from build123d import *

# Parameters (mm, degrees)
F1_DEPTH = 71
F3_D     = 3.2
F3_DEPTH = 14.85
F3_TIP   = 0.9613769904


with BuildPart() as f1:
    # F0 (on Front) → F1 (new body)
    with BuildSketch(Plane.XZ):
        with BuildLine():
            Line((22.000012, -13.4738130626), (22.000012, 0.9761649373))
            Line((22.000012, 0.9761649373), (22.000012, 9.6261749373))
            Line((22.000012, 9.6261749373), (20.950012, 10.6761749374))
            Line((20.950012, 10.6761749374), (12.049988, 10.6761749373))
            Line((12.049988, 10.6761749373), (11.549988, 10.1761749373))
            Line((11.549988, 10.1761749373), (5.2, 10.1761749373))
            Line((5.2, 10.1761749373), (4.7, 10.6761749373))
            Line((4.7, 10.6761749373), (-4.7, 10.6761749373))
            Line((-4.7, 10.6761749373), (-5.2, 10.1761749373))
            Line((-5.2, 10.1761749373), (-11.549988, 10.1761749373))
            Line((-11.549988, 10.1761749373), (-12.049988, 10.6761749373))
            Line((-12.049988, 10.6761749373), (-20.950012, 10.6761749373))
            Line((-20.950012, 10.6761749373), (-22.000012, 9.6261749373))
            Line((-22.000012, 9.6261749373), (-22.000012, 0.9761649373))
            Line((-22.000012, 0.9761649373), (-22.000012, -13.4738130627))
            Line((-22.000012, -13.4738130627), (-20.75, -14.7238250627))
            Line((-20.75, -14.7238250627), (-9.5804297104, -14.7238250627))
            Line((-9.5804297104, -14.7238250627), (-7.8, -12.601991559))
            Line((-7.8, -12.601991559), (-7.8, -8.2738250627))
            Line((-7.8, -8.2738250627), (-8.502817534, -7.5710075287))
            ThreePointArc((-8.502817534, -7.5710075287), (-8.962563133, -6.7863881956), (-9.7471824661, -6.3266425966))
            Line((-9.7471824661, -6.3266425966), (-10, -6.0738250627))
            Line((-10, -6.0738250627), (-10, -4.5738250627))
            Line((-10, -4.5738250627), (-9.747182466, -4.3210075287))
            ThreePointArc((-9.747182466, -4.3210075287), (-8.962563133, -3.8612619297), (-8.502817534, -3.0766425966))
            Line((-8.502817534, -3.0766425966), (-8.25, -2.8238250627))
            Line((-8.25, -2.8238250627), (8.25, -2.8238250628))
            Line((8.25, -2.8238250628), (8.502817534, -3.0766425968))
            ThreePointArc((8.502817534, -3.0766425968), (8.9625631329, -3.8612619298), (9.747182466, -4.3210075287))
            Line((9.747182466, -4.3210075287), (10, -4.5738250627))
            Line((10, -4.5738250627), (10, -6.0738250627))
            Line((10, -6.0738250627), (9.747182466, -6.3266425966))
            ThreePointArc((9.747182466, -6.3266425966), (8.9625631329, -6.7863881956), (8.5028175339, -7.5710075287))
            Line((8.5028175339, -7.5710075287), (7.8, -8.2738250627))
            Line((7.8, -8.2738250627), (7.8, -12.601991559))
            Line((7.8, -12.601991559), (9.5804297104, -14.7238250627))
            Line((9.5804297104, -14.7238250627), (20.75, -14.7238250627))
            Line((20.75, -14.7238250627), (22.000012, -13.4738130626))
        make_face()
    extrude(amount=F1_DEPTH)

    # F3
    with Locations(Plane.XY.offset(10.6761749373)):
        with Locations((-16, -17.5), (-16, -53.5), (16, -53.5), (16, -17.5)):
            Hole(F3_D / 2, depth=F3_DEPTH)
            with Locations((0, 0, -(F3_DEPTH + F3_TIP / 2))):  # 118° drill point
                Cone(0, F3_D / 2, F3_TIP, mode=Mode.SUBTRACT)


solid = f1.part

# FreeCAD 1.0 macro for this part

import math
import FreeCAD as App
import Part
import Sketcher
from FreeCAD import Vector
Q = App.Units.Quantity

doc = App.newDocument("Part")
body = doc.addObject("PartDesign::Body", "Body")

# Sketch on XZ plane
sketch1 = body.newObject("Sketcher::SketchObject", "Sketch")
sketch1.AttachmentSupport = (doc.getObject("XZ_Plane"), [""])
sketch1.MapMode = "FlatFace"
sketch1.addGeometry([
    Part.LineSegment(Vector(22, -13.47, 0), Vector(22, 9.63, 0)),  # 0
    Part.LineSegment(Vector(22, 9.63, 0), Vector(20.95, 10.68, 0)),  # 1
    Part.LineSegment(Vector(20.95, 10.68, 0), Vector(12.05, 10.68, 0)),  # 2
    Part.LineSegment(Vector(12.05, 10.68, 0), Vector(11.55, 10.18, 0)),  # 3
    Part.LineSegment(Vector(11.55, 10.18, 0), Vector(5.2, 10.18, 0)),  # 4
    Part.LineSegment(Vector(5.2, 10.18, 0), Vector(4.7, 10.68, 0)),  # 5
    Part.LineSegment(Vector(4.7, 10.68, 0), Vector(-4.7, 10.68, 0)),  # 6
    Part.LineSegment(Vector(-4.7, 10.68, 0), Vector(-5.2, 10.18, 0)),  # 7
    Part.LineSegment(Vector(-5.2, 10.18, 0), Vector(-11.55, 10.18, 0)),  # 8
    Part.LineSegment(Vector(-11.55, 10.18, 0), Vector(-12.05, 10.68, 0)),  # 9
    Part.LineSegment(Vector(-12.05, 10.68, 0), Vector(-20.95, 10.68, 0)),  # 10
    Part.LineSegment(Vector(-20.95, 10.68, 0), Vector(-22, 9.63, 0)),  # 11
    Part.LineSegment(Vector(-22, 9.63, 0), Vector(-22, -13.47, 0)),  # 12
    Part.LineSegment(Vector(-22, -13.47, 0), Vector(-20.75, -14.72, 0)),  # 13
    Part.LineSegment(Vector(-20.75, -14.72, 0), Vector(-9.58, -14.72, 0)),  # 14
    Part.LineSegment(Vector(-9.58, -14.72, 0), Vector(-7.8, -12.6, 0)),  # 15
    Part.LineSegment(Vector(-7.8, -12.6, 0), Vector(-7.8, -8.27, 0)),  # 16
    Part.LineSegment(Vector(-7.8, -8.27, 0), Vector(-8.5, -7.57, 0)),  # 17
    Part.ArcOfCircle(Part.Circle(Vector(-10.24, -8.06, 0), Vector(0, 0, 1), 1.8), math.radians(16), math.radians(74)),  # 18
    Part.LineSegment(Vector(-9.75, -6.33, 0), Vector(-10, -6.07, 0)),  # 19
    Part.LineSegment(Vector(-10, -6.07, 0), Vector(-10, -4.57, 0)),  # 20
    Part.LineSegment(Vector(-10, -4.57, 0), Vector(-9.75, -4.32, 0)),  # 21
    Part.ArcOfCircle(Part.Circle(Vector(-10.24, -2.59, 0), Vector(0, 0, 1), 1.8), math.radians(-74), math.radians(-16)),  # 22
    Part.LineSegment(Vector(-8.5, -3.08, 0), Vector(-8.25, -2.82, 0)),  # 23
    Part.LineSegment(Vector(-8.25, -2.82, 0), Vector(8.25, -2.82, 0)),  # 24
    Part.LineSegment(Vector(8.25, -2.82, 0), Vector(8.5, -3.08, 0)),  # 25
    Part.ArcOfCircle(Part.Circle(Vector(10.24, -2.59, 0), Vector(0, 0, 1), 1.8), math.radians(-164), math.radians(-106)),  # 26
    Part.LineSegment(Vector(9.75, -4.32, 0), Vector(10, -4.57, 0)),  # 27
    Part.LineSegment(Vector(10, -4.57, 0), Vector(10, -6.07, 0)),  # 28
    Part.LineSegment(Vector(10, -6.07, 0), Vector(9.75, -6.33, 0)),  # 29
    Part.ArcOfCircle(Part.Circle(Vector(10.24, -8.06, 0), Vector(0, 0, 1), 1.8), math.radians(106), math.radians(164)),  # 30
    Part.LineSegment(Vector(8.5, -7.57, 0), Vector(7.8, -8.27, 0)),  # 31
    Part.LineSegment(Vector(7.8, -8.27, 0), Vector(7.8, -12.6, 0)),  # 32
    Part.LineSegment(Vector(7.8, -12.6, 0), Vector(9.58, -14.72, 0)),  # 33
    Part.LineSegment(Vector(9.58, -14.72, 0), Vector(20.75, -14.72, 0)),  # 34
    Part.LineSegment(Vector(20.75, -14.72, 0), Vector(22, -13.47, 0)),  # 35
], False)
sketch1.addConstraint([
    Sketcher.Constraint("Coincident", 0, 2, 1, 1),
    Sketcher.Constraint("Coincident", 1, 2, 2, 1),
    Sketcher.Constraint("Coincident", 2, 2, 3, 1),
    Sketcher.Constraint("Coincident", 3, 2, 4, 1),
    Sketcher.Constraint("Coincident", 4, 2, 5, 1),
    Sketcher.Constraint("Coincident", 5, 2, 6, 1),
    Sketcher.Constraint("Coincident", 6, 2, 7, 1),
    Sketcher.Constraint("Coincident", 7, 2, 8, 1),
    Sketcher.Constraint("Coincident", 8, 2, 9, 1),
    Sketcher.Constraint("Coincident", 9, 2, 10, 1),
    Sketcher.Constraint("Coincident", 10, 2, 11, 1),
    Sketcher.Constraint("Coincident", 11, 2, 12, 1),
    Sketcher.Constraint("Coincident", 12, 2, 13, 1),
    Sketcher.Constraint("Coincident", 13, 2, 14, 1),
    Sketcher.Constraint("Coincident", 14, 2, 15, 1),
    Sketcher.Constraint("Coincident", 15, 2, 16, 1),
    Sketcher.Constraint("Coincident", 16, 2, 17, 1),
    Sketcher.Constraint("Coincident", 17, 2, 18, 1),
    Sketcher.Constraint("Coincident", 18, 2, 19, 1),
    Sketcher.Constraint("Coincident", 19, 2, 20, 1),
    Sketcher.Constraint("Coincident", 20, 2, 21, 1),
    Sketcher.Constraint("Coincident", 21, 2, 22, 1),
    Sketcher.Constraint("Coincident", 22, 2, 23, 1),
    Sketcher.Constraint("Coincident", 23, 2, 24, 1),
    Sketcher.Constraint("Coincident", 24, 2, 25, 1),
    Sketcher.Constraint("Coincident", 25, 2, 26, 1),
    Sketcher.Constraint("Coincident", 26, 2, 27, 1),
    Sketcher.Constraint("Coincident", 27, 2, 28, 1),
    Sketcher.Constraint("Coincident", 28, 2, 29, 1),
    Sketcher.Constraint("Coincident", 29, 2, 30, 1),
    Sketcher.Constraint("Coincident", 30, 2, 31, 1),
    Sketcher.Constraint("Coincident", 31, 2, 32, 1),
    Sketcher.Constraint("Coincident", 32, 2, 33, 1),
    Sketcher.Constraint("Coincident", 33, 2, 34, 1),
    Sketcher.Constraint("Coincident", 34, 2, 35, 1),
    Sketcher.Constraint("Coincident", 35, 2, 0, 1),
    Sketcher.Constraint("Vertical", 0),
    Sketcher.Constraint("Horizontal", 2),
    Sketcher.Constraint("Horizontal", 4),
    Sketcher.Constraint("Horizontal", 6),
    Sketcher.Constraint("Horizontal", 8),
    Sketcher.Constraint("Horizontal", 10),
    Sketcher.Constraint("Vertical", 12),
    Sketcher.Constraint("Horizontal", 14),
    Sketcher.Constraint("Vertical", 16),
    Sketcher.Constraint("Vertical", 20),
    Sketcher.Constraint("Horizontal", 24),
    Sketcher.Constraint("Vertical", 28),
    Sketcher.Constraint("Vertical", 32),
    Sketcher.Constraint("Horizontal", 34),
    Sketcher.Constraint("Equal", 18, 22),
    Sketcher.Constraint("Equal", 22, 26),
    Sketcher.Constraint("Equal", 26, 30),
    Sketcher.Constraint("Symmetric", 22, 3, 26, 3, -2),
    Sketcher.Constraint("Symmetric", 18, 3, 30, 3, -2),
    Sketcher.Constraint("Symmetric", 4, 2, 7, 2, -2),
    Sketcher.Constraint("Symmetric", 2, 2, 9, 2, -2),
    Sketcher.Constraint("Symmetric", 0, 2, 11, 2, -2),
    Sketcher.Constraint("Symmetric", 20, 2, 27, 2, -2),
    Sketcher.Constraint("Symmetric", 16, 2, 31, 2, -2),
    Sketcher.Constraint("Symmetric", 14, 2, 33, 2, -2),
    Sketcher.Constraint("Perpendicular", 1, 3),
    Sketcher.Constraint("Perpendicular", 3, 5),
    Sketcher.Constraint("Perpendicular", 5, 7),
    Sketcher.Constraint("Perpendicular", 7, 9),
    Sketcher.Constraint("Perpendicular", 9, 11),
    Sketcher.Constraint("Perpendicular", 11, 13),
    Sketcher.Constraint("Parallel", 13, 17),
    Sketcher.Constraint("Parallel", 17, 19),
    Sketcher.Constraint("Perpendicular", 19, 21),
    Sketcher.Constraint("Parallel", 21, 23),
    Sketcher.Constraint("Perpendicular", 23, 25),
    Sketcher.Constraint("Parallel", 25, 27),
    Sketcher.Constraint("Perpendicular", 27, 29),
    Sketcher.Constraint("Parallel", 29, 31),
    Sketcher.Constraint("Parallel", 31, 35),
    Sketcher.Constraint("Horizontal", 2, 2, 5, 2),
    Sketcher.Constraint("Horizontal", 22, 2, 25, 2),
    Sketcher.Constraint("Horizontal", 21, 2, 26, 2),
    Sketcher.Constraint("Horizontal", 19, 2, 28, 2),
    Sketcher.Constraint("Horizontal", 15, 2, 32, 2),
    Sketcher.Constraint("Horizontal", 12, 2, 35, 2),
    Sketcher.Constraint("Vertical", 18, 3, 22, 3),
    Sketcher.Constraint("Vertical", 18, 2, 21, 2),
    Sketcher.Constraint("Vertical", 17, 2, 22, 2),
    Sketcher.Constraint("Equal", 21, 23),
    Sketcher.Constraint("Radius", 18, 1.8),
    Sketcher.Constraint("Angle", 15, Q("50 deg")),
    Sketcher.Constraint("DistanceX", 6, 2, 6, 1, 9.4),
    Sketcher.Constraint("DistanceX", 24, 1, 24, 2, 16.5),
    Sketcher.Constraint("DistanceY", 20, 1, 20, 2, 1.5),
    Sketcher.Constraint("DistanceX", 19, 2, -1, 1, 10.0),
    Sketcher.Constraint("DistanceY", 24, 2, 4, 2, 13.0),
    Sketcher.Constraint("DistanceX", -1, 1, 4, 2, 5.2),
    Sketcher.Constraint("DistanceX", 15, 2, -1, 1, 7.8),
    Sketcher.Constraint("DistanceY", 13, 2, 10, 2, 25.4),
    Sketcher.Constraint("DistanceY", 16, 2, 19, 2, 2.2),
    Sketcher.Constraint("DistanceX", 13, 2, -1, 1, 20.75),
    Sketcher.Constraint("DistanceX", 1, 2, 0, 2, 1.05),
    Sketcher.Constraint("DistanceX", 4, 2, 4, 1, 6.349988),
    Sketcher.Constraint("DistanceX", 14, 1, 14, 2, 11.16957),
    Sketcher.Constraint("DistanceY", 0, 1, 0, 2, 23.099988),
    Sketcher.Constraint("DistanceY", 18, 3, -1, 1, 8.05918),
    Sketcher.Constraint("DistanceY", 22, 3, -1, 1, 2.58847),
])
pad1 = body.newObject("PartDesign::Pad", "Pad")
pad1.Profile = sketch1
pad1.Length = 71

# Sketch on XY plane
sketch2 = body.newObject("Sketcher::SketchObject", "Sketch001")
sketch2.AttachmentSupport = (doc.getObject("XY_Plane"), [""])
sketch2.MapMode = "FlatFace"
sketch2.AttachmentOffset = App.Placement(Vector(0, 0, 10.676175), App.Rotation())
sketch2.addGeometry([
    Part.Circle(Vector(-16, -17.5, 0), Vector(0, 0, 1), 1.6),
    Part.Circle(Vector(-16, -53.5, 0), Vector(0, 0, 1), 1.6),
    Part.Circle(Vector(16, -53.5, 0), Vector(0, 0, 1), 1.6),
    Part.Circle(Vector(16, -17.5, 0), Vector(0, 0, 1), 1.6),
], False)
sketch2.addConstraint([
    Sketcher.Constraint("Equal", 0, 1),
    Sketcher.Constraint("Equal", 1, 2),
    Sketcher.Constraint("Equal", 2, 3),
    Sketcher.Constraint("Symmetric", 1, 3, 2, 3, -2),
    Sketcher.Constraint("Symmetric", 0, 3, 3, 3, -2),
    Sketcher.Constraint("Vertical", 0, 3, 1, 3),
    Sketcher.Constraint("Diameter", 0, 3.2),
    Sketcher.Constraint("DistanceX", 0, 3, -1, 1, 16.0),
    Sketcher.Constraint("DistanceY", 1, 3, 0, 3, 36.0),
    Sketcher.Constraint("DistanceY", 0, 3, -1, 1, 17.5),
])
doc.recompute()
hole = body.newObject("PartDesign::Hole", "Hole")
hole.Profile = sketch2
hole.ThreadType = "None"
hole.Diameter = 3.2
hole.DepthType = "Dimension"
hole.Depth = 14.85
hole.DrillPoint = "Angled"
hole.DrillPointAngle = 118

doc.recompute()
